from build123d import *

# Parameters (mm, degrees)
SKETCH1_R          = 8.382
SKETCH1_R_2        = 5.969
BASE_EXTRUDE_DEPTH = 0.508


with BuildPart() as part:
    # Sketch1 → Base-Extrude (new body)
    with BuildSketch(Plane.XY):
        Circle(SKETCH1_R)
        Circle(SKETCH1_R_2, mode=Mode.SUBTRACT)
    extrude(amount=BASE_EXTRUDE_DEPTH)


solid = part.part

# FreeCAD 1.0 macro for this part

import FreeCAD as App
import Part
import Sketcher
Q = App.Units.Quantity

doc = App.newDocument("Part")
body = doc.addObject("PartDesign::Body", "Body")

sketch1 = doc.addObject("Sketcher::SketchObject", "Sketch")
body.addObject(sketch1)
sketch1.AttachmentSupport = (doc.XY_Plane, [""])
sketch1.MapMode = "FlatFace"
sketch1.addGeometry(Part.Circle(App.Vector(0, 0, 0), App.Vector(0, 0, 1), 8), False)
sketch1.addGeometry(Part.Circle(App.Vector(0, 0, 0), App.Vector(0, 0, 1), 6), False)
sketch1.addConstraint(Sketcher.Constraint("Coincident", 0, 3, -1, 1))
sketch1.addConstraint(Sketcher.Constraint("Coincident", 1, 3, -1, 1))
sketch1.addConstraint(Sketcher.Constraint("Diameter", 0, Q("0.66 in")))
sketch1.addConstraint(Sketcher.Constraint("Diameter", 1, Q("0.47 in")))
pad1 = doc.addObject("PartDesign::Pad", "Pad")
body.addObject(pad1)
pad1.Profile = sketch1
pad1.Length = Q("0.02 in")

doc.recompute()
